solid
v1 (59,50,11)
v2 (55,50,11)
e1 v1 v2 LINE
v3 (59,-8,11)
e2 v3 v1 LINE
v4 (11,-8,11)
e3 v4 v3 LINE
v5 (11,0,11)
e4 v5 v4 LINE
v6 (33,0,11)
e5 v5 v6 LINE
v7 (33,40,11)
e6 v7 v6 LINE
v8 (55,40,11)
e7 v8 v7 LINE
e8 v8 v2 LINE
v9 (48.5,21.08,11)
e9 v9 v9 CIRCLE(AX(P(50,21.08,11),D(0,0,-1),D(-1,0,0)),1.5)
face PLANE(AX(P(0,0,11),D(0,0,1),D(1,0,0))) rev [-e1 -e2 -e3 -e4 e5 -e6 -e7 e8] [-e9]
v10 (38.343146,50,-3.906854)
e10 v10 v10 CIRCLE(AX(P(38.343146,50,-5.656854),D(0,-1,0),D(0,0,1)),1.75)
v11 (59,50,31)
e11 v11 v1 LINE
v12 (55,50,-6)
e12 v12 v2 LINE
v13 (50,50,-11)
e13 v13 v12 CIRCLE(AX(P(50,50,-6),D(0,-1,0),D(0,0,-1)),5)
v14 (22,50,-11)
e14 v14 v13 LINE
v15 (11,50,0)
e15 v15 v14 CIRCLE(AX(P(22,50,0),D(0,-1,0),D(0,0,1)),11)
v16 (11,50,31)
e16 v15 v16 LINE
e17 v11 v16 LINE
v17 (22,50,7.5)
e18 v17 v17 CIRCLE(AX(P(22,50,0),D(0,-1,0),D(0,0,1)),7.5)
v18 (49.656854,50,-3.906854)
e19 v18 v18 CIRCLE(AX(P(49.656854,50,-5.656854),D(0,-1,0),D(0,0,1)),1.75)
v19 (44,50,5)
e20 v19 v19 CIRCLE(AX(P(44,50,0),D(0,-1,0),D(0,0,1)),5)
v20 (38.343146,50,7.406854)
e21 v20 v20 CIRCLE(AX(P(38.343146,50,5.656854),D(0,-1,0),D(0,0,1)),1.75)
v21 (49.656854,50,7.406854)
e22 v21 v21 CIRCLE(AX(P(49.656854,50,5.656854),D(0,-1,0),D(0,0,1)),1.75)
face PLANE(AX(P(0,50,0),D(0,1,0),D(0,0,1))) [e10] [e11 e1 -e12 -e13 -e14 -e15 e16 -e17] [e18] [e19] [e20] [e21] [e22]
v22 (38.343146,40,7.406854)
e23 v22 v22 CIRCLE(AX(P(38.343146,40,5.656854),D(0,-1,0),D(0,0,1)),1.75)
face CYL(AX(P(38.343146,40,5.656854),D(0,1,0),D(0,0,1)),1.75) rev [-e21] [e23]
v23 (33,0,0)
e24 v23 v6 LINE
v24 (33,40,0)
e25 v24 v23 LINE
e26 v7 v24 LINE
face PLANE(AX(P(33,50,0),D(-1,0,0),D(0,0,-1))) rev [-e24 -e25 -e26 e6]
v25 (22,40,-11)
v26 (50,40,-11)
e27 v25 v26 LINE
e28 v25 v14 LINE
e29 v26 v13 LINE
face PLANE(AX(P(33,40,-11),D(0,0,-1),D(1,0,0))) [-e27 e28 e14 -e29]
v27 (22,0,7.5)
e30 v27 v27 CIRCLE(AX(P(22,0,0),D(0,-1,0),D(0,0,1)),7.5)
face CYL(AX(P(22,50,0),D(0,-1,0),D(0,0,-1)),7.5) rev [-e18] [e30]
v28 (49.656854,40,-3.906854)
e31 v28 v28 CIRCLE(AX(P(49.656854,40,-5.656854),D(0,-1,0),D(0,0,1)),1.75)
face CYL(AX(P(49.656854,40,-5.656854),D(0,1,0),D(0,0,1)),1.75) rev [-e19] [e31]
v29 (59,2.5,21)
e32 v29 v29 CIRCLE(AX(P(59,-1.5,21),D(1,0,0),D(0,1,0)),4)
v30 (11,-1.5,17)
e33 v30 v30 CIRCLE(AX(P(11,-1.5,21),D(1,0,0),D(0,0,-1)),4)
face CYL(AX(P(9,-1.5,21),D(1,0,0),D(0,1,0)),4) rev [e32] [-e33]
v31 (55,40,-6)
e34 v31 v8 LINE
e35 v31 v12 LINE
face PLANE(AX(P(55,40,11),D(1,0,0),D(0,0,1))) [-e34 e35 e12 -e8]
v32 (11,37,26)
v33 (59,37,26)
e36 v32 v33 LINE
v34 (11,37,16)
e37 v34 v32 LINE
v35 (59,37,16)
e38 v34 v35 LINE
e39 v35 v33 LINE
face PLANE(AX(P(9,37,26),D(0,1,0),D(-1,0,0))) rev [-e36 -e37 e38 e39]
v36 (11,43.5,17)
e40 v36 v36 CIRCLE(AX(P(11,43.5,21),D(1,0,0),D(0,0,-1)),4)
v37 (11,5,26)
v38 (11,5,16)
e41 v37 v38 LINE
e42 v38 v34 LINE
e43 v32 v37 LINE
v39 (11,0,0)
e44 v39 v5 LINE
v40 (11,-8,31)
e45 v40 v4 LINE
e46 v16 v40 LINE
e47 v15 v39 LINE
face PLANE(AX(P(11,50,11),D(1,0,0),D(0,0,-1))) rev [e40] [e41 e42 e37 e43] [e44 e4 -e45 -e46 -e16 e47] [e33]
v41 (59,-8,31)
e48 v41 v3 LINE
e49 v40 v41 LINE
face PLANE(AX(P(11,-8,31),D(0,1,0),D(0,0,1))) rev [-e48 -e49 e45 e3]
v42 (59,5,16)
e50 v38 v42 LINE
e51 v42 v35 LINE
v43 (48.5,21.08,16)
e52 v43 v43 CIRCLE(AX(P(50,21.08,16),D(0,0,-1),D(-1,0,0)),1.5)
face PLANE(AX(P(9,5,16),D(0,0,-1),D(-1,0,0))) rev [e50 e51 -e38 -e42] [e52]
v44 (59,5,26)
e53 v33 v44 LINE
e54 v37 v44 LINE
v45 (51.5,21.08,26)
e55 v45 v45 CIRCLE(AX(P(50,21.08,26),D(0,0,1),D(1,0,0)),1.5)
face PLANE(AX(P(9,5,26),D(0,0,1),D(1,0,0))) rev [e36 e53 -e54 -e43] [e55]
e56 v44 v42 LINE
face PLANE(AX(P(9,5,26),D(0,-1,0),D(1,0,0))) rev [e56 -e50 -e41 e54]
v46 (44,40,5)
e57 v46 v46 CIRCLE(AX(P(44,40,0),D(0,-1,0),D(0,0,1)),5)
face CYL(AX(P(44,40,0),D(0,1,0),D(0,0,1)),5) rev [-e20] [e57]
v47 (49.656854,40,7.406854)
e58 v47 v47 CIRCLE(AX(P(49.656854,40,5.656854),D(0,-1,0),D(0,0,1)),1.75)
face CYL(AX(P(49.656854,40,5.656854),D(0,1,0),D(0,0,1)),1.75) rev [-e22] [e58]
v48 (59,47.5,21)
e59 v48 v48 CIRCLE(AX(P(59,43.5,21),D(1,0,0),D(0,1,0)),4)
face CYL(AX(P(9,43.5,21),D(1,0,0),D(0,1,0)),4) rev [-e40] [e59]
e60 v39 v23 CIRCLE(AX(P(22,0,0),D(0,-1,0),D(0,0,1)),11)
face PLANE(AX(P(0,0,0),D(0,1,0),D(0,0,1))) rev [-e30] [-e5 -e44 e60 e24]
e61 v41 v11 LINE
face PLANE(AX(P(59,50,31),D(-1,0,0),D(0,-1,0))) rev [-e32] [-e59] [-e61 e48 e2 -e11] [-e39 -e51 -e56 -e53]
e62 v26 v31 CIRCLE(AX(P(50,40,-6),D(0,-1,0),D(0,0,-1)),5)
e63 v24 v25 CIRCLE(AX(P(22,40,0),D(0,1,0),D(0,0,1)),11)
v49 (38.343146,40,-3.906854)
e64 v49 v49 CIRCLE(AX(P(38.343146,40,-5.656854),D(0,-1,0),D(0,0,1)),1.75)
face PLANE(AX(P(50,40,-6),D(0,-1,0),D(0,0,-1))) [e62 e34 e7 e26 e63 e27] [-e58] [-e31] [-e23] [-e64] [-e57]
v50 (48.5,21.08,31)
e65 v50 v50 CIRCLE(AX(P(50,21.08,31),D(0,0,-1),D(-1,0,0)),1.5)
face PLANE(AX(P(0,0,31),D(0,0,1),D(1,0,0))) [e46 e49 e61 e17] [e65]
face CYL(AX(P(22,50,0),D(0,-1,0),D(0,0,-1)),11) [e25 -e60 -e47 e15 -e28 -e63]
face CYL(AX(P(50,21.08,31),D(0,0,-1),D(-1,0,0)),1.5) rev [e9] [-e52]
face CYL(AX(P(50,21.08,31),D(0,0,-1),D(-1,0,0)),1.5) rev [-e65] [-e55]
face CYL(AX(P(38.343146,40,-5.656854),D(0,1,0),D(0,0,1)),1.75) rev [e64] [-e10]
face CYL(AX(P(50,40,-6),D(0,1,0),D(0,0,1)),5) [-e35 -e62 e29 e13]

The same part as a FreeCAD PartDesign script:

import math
import FreeCAD as App
import Part
import Sketcher

V = App.Vector

doc = App.newDocument("Part")
body = doc.addObject("PartDesign::Body", "Body")

# Sketch on XZ plane
sketch1 = doc.addObject("Sketcher::SketchObject", "Sketch")
body.addObject(sketch1)
sketch1.AttachmentSupport = (doc.XZ_Plane, [""])
sketch1.MapMode = "FlatFace"
sketch1.addGeometry([
    Part.LineSegment(V(-11, 0, 0), V(-11, 11, 0)),  # 0
    Part.LineSegment(V(-11, 11, 0), V(11, 11, 0)),  # 1
    Part.LineSegment(V(11, 11, 0), V(11, 0, 0)),  # 2
    Part.ArcOfCircle(Part.Circle(V(0, 0, 0), V(0, 0, 1), 11), math.radians(180), math.radians(360)),  # 3
    Part.Circle(V(0, 0, 0), V(0, 0, 1), 7.5),  # 4
], False)
sketch1.addConstraint([
    Sketcher.Constraint("Coincident", 0, 2, 1, 1),
    Sketcher.Constraint("Coincident", 1, 2, 2, 1),
    Sketcher.Constraint("Tangent", 2, 2, 3, 2),
    Sketcher.Constraint("Tangent", 3, 1, 0, 1),
    Sketcher.Constraint("Vertical", 0),
    Sketcher.Constraint("Horizontal", 1),
    Sketcher.Constraint("Vertical", 2),
    Sketcher.Constraint("Coincident", 3, 3, -1, 1),
    Sketcher.Constraint("Coincident", 4, 3, -1, 1),
    Sketcher.Constraint("Diameter", 4, 15.0),
    Sketcher.Constraint("Radius", 3, 11.0),
    Sketcher.Constraint("DistanceY", 0, 1, 0, 2, 11.0),
])
pad1 = doc.addObject("PartDesign::Pad", "Pad")
body.addObject(pad1)
pad1.Profile = sketch1
pad1.Length = 50
pad1.Reversed = True

# Sketch on XZ plane
sketch2 = doc.addObject("Sketcher::SketchObject", "Sketch001")
body.addObject(sketch2)
sketch2.AttachmentSupport = (doc.XZ_Plane, [""])
sketch2.MapMode = "FlatFace"
sketch2.AttachmentOffset = App.Placement(V(0, 0, -40), App.Rotation())
sketch2.addGeometry([
    Part.ArcOfCircle(Part.Circle(V(0, 0, 0), V(0, 0, 1), 11), math.radians(180), math.radians(270)),  # 0
    Part.LineSegment(V(0, -11, 0), V(-28, -11, 0)),  # 1
    Part.ArcOfCircle(Part.Circle(V(-28, -6, 0), V(0, 0, 1), 5), math.radians(180), math.radians(270)),  # 2
    Part.LineSegment(V(-33, -6, 0), V(-33, 11, 0)),  # 3
    Part.LineSegment(V(-33, 11, 0), V(-11, 11, 0)),  # 4
    Part.LineSegment(V(-11, 11, 0), V(-11, 0, 0)),  # 5
], False)
sketch2.addConstraint([
    Sketcher.Constraint("Tangent", 0, 2, 1, 1),
    Sketcher.Constraint("Tangent", 1, 2, 2, 2),
    Sketcher.Constraint("Tangent", 2, 1, 3, 1),
    Sketcher.Constraint("Coincident", 3, 2, 4, 1),
    Sketcher.Constraint("Coincident", 4, 2, 5, 1),
    Sketcher.Constraint("Tangent", 5, 2, 0, 1),
    Sketcher.Constraint("Horizontal", 1),
    Sketcher.Constraint("Vertical", 3),
    Sketcher.Constraint("Horizontal", 4),
    Sketcher.Constraint("Vertical", 5),
    Sketcher.Constraint("Coincident", 0, 3, -1, 1),
    Sketcher.Constraint("Radius", 0, 11.0),
    Sketcher.Constraint("Radius", 2, 5.0),
    Sketcher.Constraint("DistanceX", 1, 2, 1, 1, 28.0),
    Sketcher.Constraint("DistanceY", 3, 1, 3, 2, 17.0),
])
pad2 = doc.addObject("PartDesign::Pad", "Pad001")
body.addObject(pad2)
pad2.Profile = sketch2
pad2.Length = 10
pad2.Reversed = True

# Sketch on XZ plane
sketch3 = doc.addObject("Sketcher::SketchObject", "Sketch002")
body.addObject(sketch3)
sketch3.AttachmentSupport = (doc.XZ_Plane, [""])
sketch3.MapMode = "FlatFace"
sketch3.AttachmentOffset = App.Placement(V(0, 0, -50), App.Rotation())
sketch3.addGeometry([
    Part.Circle(V(-22, 0, 0), V(0, 0, 1), 5),  # 0
    Part.Circle(V(-27.656854, -5.656854, 0), V(0, 0, 1), 1.75),  # 1
    Part.Circle(V(-16.343146, -5.656854, 0), V(0, 0, 1), 1.75),  # 2
    Part.Circle(V(-16.343146, 5.656854, 0), V(0, 0, 1), 1.75),  # 3
    Part.Circle(V(-27.656854, 5.656854, 0), V(0, 0, 1), 1.75),  # 4
], False)
sketch3.addConstraint([
    Sketcher.Constraint("Equal", 1, 2),
    Sketcher.Constraint("Equal", 2, 3),
    Sketcher.Constraint("Equal", 3, 4),
    Sketcher.Constraint("Symmetric", 2, 3, 3, 3, -1),
    Sketcher.Constraint("Symmetric", 1, 3, 4, 3, -1),
    Sketcher.Constraint("PointOnObject", 0, 3, -1),
    Sketcher.Constraint("Horizontal", 1, 3, 2, 3),
    Sketcher.Constraint("Diameter", 0, 10.0),
    Sketcher.Constraint("Diameter", 1, 3.5),
    Sketcher.Constraint("DistanceX", 0, 3, -1, 1, 22.0),
    Sketcher.Constraint("DistanceX", 1, 3, 2, 3, 11.313708),
    Sketcher.Constraint("DistanceY", 2, 3, 3, 3, 11.313708),
    Sketcher.Constraint("DistanceX", 1, 3, -1, 1, 27.656854),
])
pocket1 = doc.addObject("PartDesign::Pocket", "Pocket")
body.addObject(pocket1)
pocket1.Profile = sketch3
pocket1.Length = 10
pocket1.Reversed = True
body2 = doc.addObject("PartDesign::Body", "Body001")
doc.recompute()

body2.BaseFeature = body
doc.recompute()

mirroring = doc.addObject("Part::Mirroring", "Mirroring")
mirroring.Source = body
mirroring.Base = V(11, 50, 11)
mirroring.Normal = V(-1, 0, 0)
body3 = doc.addObject("PartDesign::Body", "Body002")
body3.BaseFeature = mirroring
boolean = doc.addObject("PartDesign::Boolean", "Boolean")
body2.addObject(boolean)
boolean.Type = "Fuse"
boolean.addObjects([body3])
doc.recompute()

# Sketch on XZ plane
sketch4 = doc.addObject("Sketcher::SketchObject", "Sketch003")
body2.addObject(sketch4)
sketch4.AttachmentSupport = (doc.getObject("XZ_Plane001"), [""])
sketch4.MapMode = "FlatFace"
sketch4.addGeometry([
    Part.LineSegment(V(-33, 11, 0), V(-33, -11, 0)),
    Part.LineSegment(V(-33, -11, 0), V(11, -11, 0)),
    Part.LineSegment(V(11, -11, 0), V(11, 11, 0)),
    Part.LineSegment(V(11, 11, 0), V(-33, 11, 0)),
], False)
sketch4.addConstraint([
    Sketcher.Constraint("Coincident", 0, 2, 1, 1),
    Sketcher.Constraint("Coincident", 1, 2, 2, 1),
    Sketcher.Constraint("Coincident", 2, 2, 3, 1),
    Sketcher.Constraint("Coincident", 3, 2, 0, 1),
    Sketcher.Constraint("Vertical", 0),
    Sketcher.Constraint("Horizontal", 1),
    Sketcher.Constraint("Vertical", 2),
    Sketcher.Constraint("Horizontal", 3),
    Sketcher.Constraint("DistanceX", 1, 1, 1, 2, 44.0),
    Sketcher.Constraint("DistanceY", 0, 2, 0, 1, 22.0),
    Sketcher.Constraint("DistanceX", 0, 2, -1, 1, 33.0),
    Sketcher.Constraint("DistanceY", 0, 2, -1, 1, 11.0),
])
pocket2 = doc.addObject("PartDesign::Pocket", "Pocket001")
body2.addObject(pocket2)
pocket2.Profile = sketch4
pocket2.Length = 50

# Sketch on XY plane
sketch5 = doc.addObject("Sketcher::SketchObject", "Sketch004")
body2.addObject(sketch5)
sketch5.AttachmentSupport = (doc.getObject("XY_Plane001"), [""])
sketch5.MapMode = "FlatFace"
sketch5.AttachmentOffset = App.Placement(V(0, 0, 11), App.Rotation())
sketch5.addGeometry([
    Part.LineSegment(V(11, 50, 0), V(11, -8, 0)),
    Part.LineSegment(V(11, -8, 0), V(59, -8, 0)),
    Part.LineSegment(V(59, -8, 0), V(59, 50, 0)),
    Part.LineSegment(V(59, 50, 0), V(11, 50, 0)),
], False)
sketch5.addConstraint([
    Sketcher.Constraint("Coincident", 0, 2, 1, 1),
    Sketcher.Constraint("Coincident", 1, 2, 2, 1),
    Sketcher.Constraint("Coincident", 2, 2, 3, 1),
    Sketcher.Constraint("Coincident", 3, 2, 0, 1),
    Sketcher.Constraint("Vertical", 0),
    Sketcher.Constraint("Horizontal", 1),
    Sketcher.Constraint("Vertical", 2),
    Sketcher.Constraint("Horizontal", 3),
    Sketcher.Constraint("DistanceX", 1, 1, 1, 2, 48.0),
    Sketcher.Constraint("DistanceY", 0, 2, 0, 1, 58.0),
    Sketcher.Constraint("DistanceX", -1, 1, 0, 2, 11.0),
    Sketcher.Constraint("DistanceY", 0, 2, -1, 1, 8.0),
])
pad3 = doc.addObject("PartDesign::Pad", "Pad002")
body2.addObject(pad3)
pad3.Profile = sketch5
pad3.Length = 20

# Sketch on YZ plane
sketch6 = doc.addObject("Sketcher::SketchObject", "Sketch005")
body2.addObject(sketch6)
sketch6.AttachmentSupport = (doc.getObject("YZ_Plane001"), [""])
sketch6.MapMode = "FlatFace"
sketch6.AttachmentOffset = App.Placement(V(0, 0, 59), App.Rotation())
sketch6.addGeometry([
    Part.Circle(V(43.5, 21, 0), V(0, 0, 1), 4),
    Part.Circle(V(-1.5, 21, 0), V(0, 0, 1), 4),
], False)
sketch6.addConstraint([
    Sketcher.Constraint("Equal", 0, 1),
    Sketcher.Constraint("Horizontal", 0, 3, 1, 3),
    Sketcher.Constraint("Diameter", 0, 8.0),
    Sketcher.Constraint("DistanceY", -1, 1, 0, 3, 21.0),
    Sketcher.Constraint("DistanceX", 1, 3, 0, 3, 45.0),
    Sketcher.Constraint("DistanceX", -1, 1, 0, 3, 43.5),
])
pocket3 = doc.addObject("PartDesign::Pocket", "Pocket002")
body2.addObject(pocket3)
pocket3.Profile = sketch6
pocket3.Length = 50

# Sketch on YZ plane
sketch7 = doc.addObject("Sketcher::SketchObject", "Sketch006")
body2.addObject(sketch7)
sketch7.AttachmentSupport = (doc.getObject("YZ_Plane001"), [""])
sketch7.MapMode = "FlatFace"
sketch7.AttachmentOffset = App.Placement(V(0, 0, 59), App.Rotation())
sketch7.addGeometry([
    Part.LineSegment(V(37, 26, 0), V(5, 26, 0)),
    Part.LineSegment(V(5, 26, 0), V(5, 16, 0)),
    Part.LineSegment(V(5, 16, 0), V(37, 16, 0)),
    Part.LineSegment(V(37, 16, 0), V(37, 26, 0)),
], False)
sketch7.addConstraint([
    Sketcher.Constraint("Coincident", 0, 2, 1, 1),
    Sketcher.Constraint("Coincident", 1, 2, 2, 1),
    Sketcher.Constraint("Coincident", 2, 2, 3, 1),
    Sketcher.Constraint("Coincident", 3, 2, 0, 1),
    Sketcher.Constraint("Horizontal", 0),
    Sketcher.Constraint("Vertical", 1),
    Sketcher.Constraint("Horizontal", 2),
    Sketcher.Constraint("Vertical", 3),
    Sketcher.Constraint("DistanceX", 0, 2, 0, 1, 32.0),
    Sketcher.Constraint("DistanceY", 1, 2, 1, 1, 10.0),
    Sketcher.Constraint("DistanceX", -1, 1, 0, 2, 5.0),
    Sketcher.Constraint("DistanceY", -1, 1, 0, 2, 26.0),
])
pocket4 = doc.addObject("PartDesign::Pocket", "Pocket003")
body2.addObject(pocket4)
pocket4.Profile = sketch7
pocket4.Length = 50

# Sketch on XY plane
sketch8 = doc.addObject("Sketcher::SketchObject", "Sketch007")
body2.addObject(sketch8)
sketch8.AttachmentSupport = (doc.getObject("XY_Plane001"), [""])
sketch8.MapMode = "FlatFace"
sketch8.AttachmentOffset = App.Placement(V(0, 0, 11), App.Rotation())
sketch8.addGeometry(Part.Circle(V(50, 21.08, 0), V(0, 0, 1), 1.5), False)
sketch8.addConstraint([
    Sketcher.Constraint("Diameter", 0, 3.0),
    Sketcher.Constraint("DistanceX", -1, 1, 0, 3, 50.0),
    Sketcher.Constraint("DistanceY", -1, 1, 0, 3, 21.08),
])
pocket5 = doc.addObject("PartDesign::Pocket", "Pocket004")
body2.addObject(pocket5)
pocket5.Profile = sketch8
pocket5.Length = 20
pocket5.Reversed = True
mirroring.Visibility = False

doc.recompute()
